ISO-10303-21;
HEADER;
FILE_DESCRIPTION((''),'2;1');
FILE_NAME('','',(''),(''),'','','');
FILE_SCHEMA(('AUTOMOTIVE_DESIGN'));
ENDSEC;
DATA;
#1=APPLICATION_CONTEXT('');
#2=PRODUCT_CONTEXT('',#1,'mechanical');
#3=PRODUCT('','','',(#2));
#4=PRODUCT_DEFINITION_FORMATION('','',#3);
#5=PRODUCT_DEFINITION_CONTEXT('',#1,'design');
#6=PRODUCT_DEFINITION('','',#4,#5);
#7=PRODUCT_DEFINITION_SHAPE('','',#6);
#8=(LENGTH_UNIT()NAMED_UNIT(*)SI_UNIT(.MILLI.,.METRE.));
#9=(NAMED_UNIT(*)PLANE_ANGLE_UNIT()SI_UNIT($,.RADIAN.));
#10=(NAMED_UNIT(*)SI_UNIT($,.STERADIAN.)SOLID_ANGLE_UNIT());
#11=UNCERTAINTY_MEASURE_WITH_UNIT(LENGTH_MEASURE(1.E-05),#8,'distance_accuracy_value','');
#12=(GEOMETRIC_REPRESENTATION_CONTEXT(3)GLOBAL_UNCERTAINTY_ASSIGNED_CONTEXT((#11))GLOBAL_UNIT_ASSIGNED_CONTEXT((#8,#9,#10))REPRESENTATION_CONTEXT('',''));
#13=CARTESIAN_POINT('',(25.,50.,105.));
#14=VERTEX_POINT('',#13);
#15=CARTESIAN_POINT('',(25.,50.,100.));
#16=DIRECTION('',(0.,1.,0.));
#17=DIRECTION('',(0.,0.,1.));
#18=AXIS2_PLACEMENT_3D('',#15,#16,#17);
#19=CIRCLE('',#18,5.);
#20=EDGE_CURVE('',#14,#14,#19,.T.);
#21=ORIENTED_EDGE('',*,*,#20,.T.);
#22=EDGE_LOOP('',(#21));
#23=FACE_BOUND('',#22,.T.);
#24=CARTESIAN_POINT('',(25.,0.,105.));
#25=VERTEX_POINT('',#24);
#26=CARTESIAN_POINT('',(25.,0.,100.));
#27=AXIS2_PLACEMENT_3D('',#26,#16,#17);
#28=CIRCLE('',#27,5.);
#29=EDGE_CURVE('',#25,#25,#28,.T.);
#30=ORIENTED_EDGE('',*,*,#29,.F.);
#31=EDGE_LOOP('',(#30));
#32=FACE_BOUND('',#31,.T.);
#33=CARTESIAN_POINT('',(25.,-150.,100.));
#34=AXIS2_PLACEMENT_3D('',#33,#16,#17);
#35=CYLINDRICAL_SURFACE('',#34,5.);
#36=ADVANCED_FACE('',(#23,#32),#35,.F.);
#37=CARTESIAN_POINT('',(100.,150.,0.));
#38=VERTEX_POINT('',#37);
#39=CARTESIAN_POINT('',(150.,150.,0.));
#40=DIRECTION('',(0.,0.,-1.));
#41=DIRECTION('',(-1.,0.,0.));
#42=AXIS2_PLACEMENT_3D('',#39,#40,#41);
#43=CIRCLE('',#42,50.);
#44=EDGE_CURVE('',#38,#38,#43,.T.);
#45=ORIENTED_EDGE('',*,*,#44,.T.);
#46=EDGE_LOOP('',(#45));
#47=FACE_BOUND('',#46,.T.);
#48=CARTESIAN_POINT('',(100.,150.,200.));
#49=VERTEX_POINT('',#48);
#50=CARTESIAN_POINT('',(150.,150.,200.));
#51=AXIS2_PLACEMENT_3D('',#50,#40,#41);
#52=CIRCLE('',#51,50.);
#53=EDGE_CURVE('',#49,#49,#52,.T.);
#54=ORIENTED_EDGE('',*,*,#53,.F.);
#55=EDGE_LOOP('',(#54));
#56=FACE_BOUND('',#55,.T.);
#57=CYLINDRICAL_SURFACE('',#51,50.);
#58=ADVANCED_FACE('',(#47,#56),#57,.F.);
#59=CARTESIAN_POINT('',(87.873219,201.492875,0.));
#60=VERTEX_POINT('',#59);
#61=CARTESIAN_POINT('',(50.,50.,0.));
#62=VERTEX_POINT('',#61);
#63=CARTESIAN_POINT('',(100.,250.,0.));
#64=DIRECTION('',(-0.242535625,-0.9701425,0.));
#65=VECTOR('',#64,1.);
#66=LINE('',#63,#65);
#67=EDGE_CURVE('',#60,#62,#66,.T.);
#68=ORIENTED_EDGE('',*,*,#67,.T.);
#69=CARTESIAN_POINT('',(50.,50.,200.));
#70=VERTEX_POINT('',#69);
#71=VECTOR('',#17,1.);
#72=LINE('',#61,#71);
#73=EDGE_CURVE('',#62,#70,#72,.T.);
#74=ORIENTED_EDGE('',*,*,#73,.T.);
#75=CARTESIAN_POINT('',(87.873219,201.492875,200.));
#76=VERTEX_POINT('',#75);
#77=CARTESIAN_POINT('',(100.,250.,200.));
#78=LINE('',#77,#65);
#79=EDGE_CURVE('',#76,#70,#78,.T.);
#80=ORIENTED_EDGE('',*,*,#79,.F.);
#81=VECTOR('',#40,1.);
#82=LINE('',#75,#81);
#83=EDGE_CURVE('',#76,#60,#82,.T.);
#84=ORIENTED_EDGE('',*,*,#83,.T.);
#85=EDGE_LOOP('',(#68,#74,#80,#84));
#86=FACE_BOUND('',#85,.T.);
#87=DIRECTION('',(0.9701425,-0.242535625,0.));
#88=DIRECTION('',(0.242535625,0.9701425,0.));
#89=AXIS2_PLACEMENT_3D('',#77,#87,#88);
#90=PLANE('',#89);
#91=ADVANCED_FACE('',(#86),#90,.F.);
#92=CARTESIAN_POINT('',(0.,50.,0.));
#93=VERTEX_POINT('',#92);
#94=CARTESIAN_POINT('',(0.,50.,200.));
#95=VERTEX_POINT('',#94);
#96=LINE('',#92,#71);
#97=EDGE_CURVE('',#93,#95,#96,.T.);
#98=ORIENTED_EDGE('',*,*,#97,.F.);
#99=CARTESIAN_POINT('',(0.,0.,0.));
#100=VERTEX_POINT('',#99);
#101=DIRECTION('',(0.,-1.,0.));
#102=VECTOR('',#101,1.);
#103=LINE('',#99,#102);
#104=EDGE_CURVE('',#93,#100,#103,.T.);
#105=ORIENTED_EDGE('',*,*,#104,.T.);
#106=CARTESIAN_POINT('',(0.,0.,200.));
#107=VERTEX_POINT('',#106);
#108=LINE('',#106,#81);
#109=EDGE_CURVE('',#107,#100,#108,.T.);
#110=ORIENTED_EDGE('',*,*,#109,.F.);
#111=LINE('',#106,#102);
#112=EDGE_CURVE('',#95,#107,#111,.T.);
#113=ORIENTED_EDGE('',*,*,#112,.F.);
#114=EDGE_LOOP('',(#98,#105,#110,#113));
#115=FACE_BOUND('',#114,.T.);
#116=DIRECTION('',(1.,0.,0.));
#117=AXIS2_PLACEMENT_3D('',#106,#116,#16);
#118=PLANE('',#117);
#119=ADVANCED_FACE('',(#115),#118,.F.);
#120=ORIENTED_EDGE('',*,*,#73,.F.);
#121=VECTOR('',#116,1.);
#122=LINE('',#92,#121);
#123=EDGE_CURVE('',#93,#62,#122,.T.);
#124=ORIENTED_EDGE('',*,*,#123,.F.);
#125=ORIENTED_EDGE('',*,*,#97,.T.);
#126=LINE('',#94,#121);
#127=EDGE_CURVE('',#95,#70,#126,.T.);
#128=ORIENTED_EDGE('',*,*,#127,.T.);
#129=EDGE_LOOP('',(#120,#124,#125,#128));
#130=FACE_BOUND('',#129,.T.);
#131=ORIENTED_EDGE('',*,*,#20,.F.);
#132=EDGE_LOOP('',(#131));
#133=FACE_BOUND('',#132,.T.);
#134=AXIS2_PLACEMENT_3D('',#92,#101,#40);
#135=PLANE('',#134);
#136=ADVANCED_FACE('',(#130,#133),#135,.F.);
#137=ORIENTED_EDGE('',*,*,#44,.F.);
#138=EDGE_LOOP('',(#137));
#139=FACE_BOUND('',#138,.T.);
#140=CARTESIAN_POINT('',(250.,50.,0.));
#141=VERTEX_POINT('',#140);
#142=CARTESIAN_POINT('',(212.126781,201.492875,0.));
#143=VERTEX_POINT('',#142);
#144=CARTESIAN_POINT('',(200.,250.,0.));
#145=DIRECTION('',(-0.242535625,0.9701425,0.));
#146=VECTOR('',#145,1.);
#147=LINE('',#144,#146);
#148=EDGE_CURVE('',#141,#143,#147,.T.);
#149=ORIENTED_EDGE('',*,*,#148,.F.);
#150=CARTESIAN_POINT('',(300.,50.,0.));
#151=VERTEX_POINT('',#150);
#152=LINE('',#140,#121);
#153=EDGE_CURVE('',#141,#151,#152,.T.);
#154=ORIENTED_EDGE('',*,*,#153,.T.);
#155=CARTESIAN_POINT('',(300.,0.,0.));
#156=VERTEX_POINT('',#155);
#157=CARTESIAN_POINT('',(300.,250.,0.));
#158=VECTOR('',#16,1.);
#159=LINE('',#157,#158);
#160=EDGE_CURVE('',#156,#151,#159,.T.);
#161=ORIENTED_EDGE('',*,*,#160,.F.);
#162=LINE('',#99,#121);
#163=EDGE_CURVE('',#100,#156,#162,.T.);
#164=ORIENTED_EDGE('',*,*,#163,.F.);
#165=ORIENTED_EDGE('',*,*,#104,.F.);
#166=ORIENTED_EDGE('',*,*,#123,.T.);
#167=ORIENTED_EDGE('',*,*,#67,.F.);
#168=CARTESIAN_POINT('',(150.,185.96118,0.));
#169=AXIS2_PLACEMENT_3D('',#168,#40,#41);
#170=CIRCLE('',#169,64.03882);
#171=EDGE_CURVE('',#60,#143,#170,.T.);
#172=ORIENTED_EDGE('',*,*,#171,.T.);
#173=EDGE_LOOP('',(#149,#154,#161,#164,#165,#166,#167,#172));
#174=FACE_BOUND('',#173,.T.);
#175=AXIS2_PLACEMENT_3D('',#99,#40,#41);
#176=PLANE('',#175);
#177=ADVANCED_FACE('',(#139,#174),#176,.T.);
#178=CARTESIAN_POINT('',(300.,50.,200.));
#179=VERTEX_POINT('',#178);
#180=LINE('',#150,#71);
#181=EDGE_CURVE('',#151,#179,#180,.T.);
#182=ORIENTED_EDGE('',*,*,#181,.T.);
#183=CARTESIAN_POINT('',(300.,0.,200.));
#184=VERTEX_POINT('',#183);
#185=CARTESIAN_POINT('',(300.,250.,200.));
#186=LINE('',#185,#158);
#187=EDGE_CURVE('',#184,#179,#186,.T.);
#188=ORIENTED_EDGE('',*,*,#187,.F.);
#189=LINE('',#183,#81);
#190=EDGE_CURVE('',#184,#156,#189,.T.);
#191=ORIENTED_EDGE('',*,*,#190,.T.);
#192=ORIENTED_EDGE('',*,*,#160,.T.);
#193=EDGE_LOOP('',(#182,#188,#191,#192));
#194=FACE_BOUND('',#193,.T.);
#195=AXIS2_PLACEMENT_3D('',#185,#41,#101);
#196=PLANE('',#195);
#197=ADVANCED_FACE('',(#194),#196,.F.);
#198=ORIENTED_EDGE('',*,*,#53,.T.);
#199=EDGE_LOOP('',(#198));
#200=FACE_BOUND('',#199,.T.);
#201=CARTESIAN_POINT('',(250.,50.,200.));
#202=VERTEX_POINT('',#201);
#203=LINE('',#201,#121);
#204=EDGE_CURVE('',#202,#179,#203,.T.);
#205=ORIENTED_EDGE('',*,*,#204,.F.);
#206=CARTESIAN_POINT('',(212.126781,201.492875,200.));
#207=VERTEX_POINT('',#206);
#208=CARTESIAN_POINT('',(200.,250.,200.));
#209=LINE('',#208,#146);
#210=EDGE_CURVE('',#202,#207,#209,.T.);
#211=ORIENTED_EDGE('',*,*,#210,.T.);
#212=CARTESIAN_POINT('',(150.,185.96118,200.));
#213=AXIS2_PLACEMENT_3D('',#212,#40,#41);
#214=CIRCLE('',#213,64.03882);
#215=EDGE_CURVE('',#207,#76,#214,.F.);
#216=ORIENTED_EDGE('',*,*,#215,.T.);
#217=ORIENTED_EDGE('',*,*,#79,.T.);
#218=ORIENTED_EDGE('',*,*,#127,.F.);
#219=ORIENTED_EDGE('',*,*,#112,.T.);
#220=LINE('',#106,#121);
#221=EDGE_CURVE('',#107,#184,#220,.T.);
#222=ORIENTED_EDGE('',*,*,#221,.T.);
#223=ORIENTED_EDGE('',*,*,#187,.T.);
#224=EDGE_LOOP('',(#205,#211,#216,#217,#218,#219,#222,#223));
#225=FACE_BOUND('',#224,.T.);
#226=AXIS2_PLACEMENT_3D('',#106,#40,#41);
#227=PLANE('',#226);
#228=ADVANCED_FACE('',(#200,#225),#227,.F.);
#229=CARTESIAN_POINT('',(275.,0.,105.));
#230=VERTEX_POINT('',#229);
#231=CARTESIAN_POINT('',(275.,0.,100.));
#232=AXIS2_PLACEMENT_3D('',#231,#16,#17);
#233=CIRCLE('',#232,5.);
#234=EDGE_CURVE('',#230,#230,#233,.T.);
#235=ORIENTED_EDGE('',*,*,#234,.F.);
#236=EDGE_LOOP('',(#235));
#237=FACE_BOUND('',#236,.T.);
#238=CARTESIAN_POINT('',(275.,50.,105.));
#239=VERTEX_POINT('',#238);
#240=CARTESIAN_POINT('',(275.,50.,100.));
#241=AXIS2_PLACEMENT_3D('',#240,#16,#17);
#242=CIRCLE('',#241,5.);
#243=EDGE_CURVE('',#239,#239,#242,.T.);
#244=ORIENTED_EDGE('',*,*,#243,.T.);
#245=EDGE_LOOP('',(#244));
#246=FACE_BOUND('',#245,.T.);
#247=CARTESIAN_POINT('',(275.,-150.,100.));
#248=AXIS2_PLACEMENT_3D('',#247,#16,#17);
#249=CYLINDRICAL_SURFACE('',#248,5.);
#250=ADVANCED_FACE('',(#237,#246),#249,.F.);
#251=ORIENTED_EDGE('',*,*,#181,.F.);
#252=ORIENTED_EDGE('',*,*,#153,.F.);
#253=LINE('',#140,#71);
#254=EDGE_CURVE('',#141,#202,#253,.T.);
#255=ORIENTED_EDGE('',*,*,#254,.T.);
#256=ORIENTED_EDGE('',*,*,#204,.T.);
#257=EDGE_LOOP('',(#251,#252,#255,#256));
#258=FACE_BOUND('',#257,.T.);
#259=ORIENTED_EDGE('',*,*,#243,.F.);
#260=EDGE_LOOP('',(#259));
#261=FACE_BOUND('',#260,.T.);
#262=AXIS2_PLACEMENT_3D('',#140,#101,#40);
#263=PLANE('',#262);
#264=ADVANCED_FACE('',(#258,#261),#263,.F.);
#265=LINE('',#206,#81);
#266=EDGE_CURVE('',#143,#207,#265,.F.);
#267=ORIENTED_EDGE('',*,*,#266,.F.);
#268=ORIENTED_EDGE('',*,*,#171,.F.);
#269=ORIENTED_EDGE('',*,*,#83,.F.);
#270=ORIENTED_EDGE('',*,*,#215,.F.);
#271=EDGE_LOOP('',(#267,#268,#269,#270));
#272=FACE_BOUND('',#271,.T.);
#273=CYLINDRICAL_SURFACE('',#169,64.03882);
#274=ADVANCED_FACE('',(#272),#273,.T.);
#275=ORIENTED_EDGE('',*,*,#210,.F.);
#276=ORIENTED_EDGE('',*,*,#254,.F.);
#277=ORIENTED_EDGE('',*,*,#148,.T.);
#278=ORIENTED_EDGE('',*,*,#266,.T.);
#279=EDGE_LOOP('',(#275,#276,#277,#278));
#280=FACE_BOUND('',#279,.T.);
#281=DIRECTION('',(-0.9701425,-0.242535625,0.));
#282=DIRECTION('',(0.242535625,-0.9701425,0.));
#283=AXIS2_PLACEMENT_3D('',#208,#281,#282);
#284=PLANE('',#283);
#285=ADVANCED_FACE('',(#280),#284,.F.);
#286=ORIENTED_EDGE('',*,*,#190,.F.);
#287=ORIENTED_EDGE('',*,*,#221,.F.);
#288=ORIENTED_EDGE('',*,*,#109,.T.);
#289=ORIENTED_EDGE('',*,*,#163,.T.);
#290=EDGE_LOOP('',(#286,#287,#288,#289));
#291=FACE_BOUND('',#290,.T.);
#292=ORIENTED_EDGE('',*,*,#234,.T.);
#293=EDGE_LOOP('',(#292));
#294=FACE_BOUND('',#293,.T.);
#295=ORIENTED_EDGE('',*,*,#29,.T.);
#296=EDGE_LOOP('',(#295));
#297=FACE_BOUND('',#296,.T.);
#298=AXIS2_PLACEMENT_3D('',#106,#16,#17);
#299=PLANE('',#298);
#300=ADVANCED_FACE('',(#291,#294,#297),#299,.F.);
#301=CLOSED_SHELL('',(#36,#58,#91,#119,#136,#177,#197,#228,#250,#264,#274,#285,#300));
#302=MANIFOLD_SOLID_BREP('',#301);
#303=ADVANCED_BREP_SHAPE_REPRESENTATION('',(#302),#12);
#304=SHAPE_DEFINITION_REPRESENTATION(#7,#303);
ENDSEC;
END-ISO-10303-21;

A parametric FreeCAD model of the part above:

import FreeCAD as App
import Part
import Sketcher
from FreeCAD import Vector


def edges_at(feature, points):
    """Names of the edges that pass closest to the given points."""
    edges = feature.Shape.Edges
    near = lambda p: min(range(len(edges)), key=lambda i: edges[i].distToShape(Part.Vertex(*p))[0])
    return sorted({f"Edge{near(p) + 1}" for p in points})

doc = App.newDocument("Part")
body = doc.addObject("PartDesign::Body", "Body")

sketch1 = body.newObject("Sketcher::SketchObject", "Sketch")
sketch1.AttachmentSupport = (doc.getObject("XY_Plane"), [""])
sketch1.MapMode = "FlatFace"
sketch1.addGeometry([
    Part.LineSegment(Vector(0, 250, 0), Vector(0, 0, 0)),
    Part.LineSegment(Vector(0, 0, 0), Vector(300, 0, 0)),
    Part.LineSegment(Vector(300, 0, 0), Vector(300, 250, 0)),
    Part.LineSegment(Vector(300, 250, 0), Vector(0, 250, 0)),
], False)
sketch1.addConstraint([
    Sketcher.Constraint("Coincident", 0, 2, 1, 1),
    Sketcher.Constraint("Coincident", 1, 2, 2, 1),
    Sketcher.Constraint("Coincident", 2, 2, 3, 1),
    Sketcher.Constraint("Coincident", 3, 2, 0, 1),
    Sketcher.Constraint("Vertical", 0),
    Sketcher.Constraint("Horizontal", 1),
    Sketcher.Constraint("Vertical", 2),
    Sketcher.Constraint("Horizontal", 3),
    Sketcher.Constraint("Coincident", 0, 2, -1, 1),
    Sketcher.Constraint("DistanceX", 1, 1, 1, 2, 300.0),
    Sketcher.Constraint("DistanceY", 0, 2, 0, 1, 250.0),
])
pad1 = body.newObject("PartDesign::Pad", "Pad")
pad1.Profile = sketch1
pad1.Length = 200

sketch2 = body.newObject("Sketcher::SketchObject", "Sketch001")
sketch2.AttachmentSupport = (doc.getObject("XY_Plane"), [""])
sketch2.MapMode = "FlatFace"
sketch2.AttachmentOffset = App.Placement(Vector(0, 0, 200), App.Rotation())
sketch2.addGeometry([
    Part.LineSegment(Vector(0, 250, 0), Vector(0, 50, 0)),
    Part.LineSegment(Vector(0, 50, 0), Vector(50, 50, 0)),
    Part.LineSegment(Vector(50, 50, 0), Vector(50, 250, 0)),
    Part.LineSegment(Vector(50, 250, 0), Vector(0, 250, 0)),
], False)
sketch2.addConstraint([
    Sketcher.Constraint("Coincident", 0, 2, 1, 1),
    Sketcher.Constraint("Coincident", 1, 2, 2, 1),
    Sketcher.Constraint("Coincident", 2, 2, 3, 1),
    Sketcher.Constraint("Coincident", 3, 2, 0, 1),
    Sketcher.Constraint("Vertical", 0),
    Sketcher.Constraint("Horizontal", 1),
    Sketcher.Constraint("Vertical", 2),
    Sketcher.Constraint("Horizontal", 3),
    Sketcher.Constraint("PointOnObject", 0, 2, -2),
    Sketcher.Constraint("DistanceX", 1, 1, 1, 2, 50.0),
    Sketcher.Constraint("DistanceY", 0, 2, 0, 1, 200.0),
    Sketcher.Constraint("DistanceY", -1, 1, 0, 2, 50.0),
])
pocket1 = body.newObject("PartDesign::Pocket", "Pocket")
pocket1.Profile = sketch2
pocket1.Length = 200

sketch3 = body.newObject("Sketcher::SketchObject", "Sketch002")
sketch3.AttachmentSupport = (doc.getObject("XY_Plane"), [""])
sketch3.MapMode = "FlatFace"
sketch3.AttachmentOffset = App.Placement(Vector(0, 0, 200), App.Rotation())
sketch3.addGeometry([
    Part.LineSegment(Vector(250, 250, 0), Vector(250, 50, 0)),
    Part.LineSegment(Vector(250, 50, 0), Vector(300, 50, 0)),
    Part.LineSegment(Vector(300, 50, 0), Vector(300, 250, 0)),
    Part.LineSegment(Vector(300, 250, 0), Vector(250, 250, 0)),
], False)
sketch3.addConstraint([
    Sketcher.Constraint("Coincident", 0, 2, 1, 1),
    Sketcher.Constraint("Coincident", 1, 2, 2, 1),
    Sketcher.Constraint("Coincident", 2, 2, 3, 1),
    Sketcher.Constraint("Coincident", 3, 2, 0, 1),
    Sketcher.Constraint("Vertical", 0),
    Sketcher.Constraint("Horizontal", 1),
    Sketcher.Constraint("Vertical", 2),
    Sketcher.Constraint("Horizontal", 3),
    Sketcher.Constraint("DistanceX", 1, 1, 1, 2, 50.0),
    Sketcher.Constraint("DistanceY", 0, 2, 0, 1, 200.0),
    Sketcher.Constraint("DistanceX", -1, 1, 0, 2, 250.0),
    Sketcher.Constraint("DistanceY", -1, 1, 0, 2, 50.0),
])
pocket2 = body.newObject("PartDesign::Pocket", "Pocket001")
pocket2.Profile = sketch3
pocket2.Length = 200

sketch4 = body.newObject("Sketcher::SketchObject", "Sketch003")
sketch4.AttachmentSupport = (doc.getObject("XY_Plane"), [""])
sketch4.MapMode = "FlatFace"
sketch4.addGeometry([
    Part.LineSegment(Vector(50, 250, 0), Vector(100, 250, 0)),
    Part.LineSegment(Vector(100, 250, 0), Vector(50, 50, 0)),
    Part.LineSegment(Vector(50, 50, 0), Vector(50, 250, 0)),
], False)
sketch4.addConstraint([
    Sketcher.Constraint("Coincident", 0, 2, 1, 1),
    Sketcher.Constraint("Coincident", 1, 2, 2, 1),
    Sketcher.Constraint("Coincident", 2, 2, 0, 1),
    Sketcher.Constraint("Horizontal", 0),
    Sketcher.Constraint("Vertical", 2),
    Sketcher.Constraint("DistanceX", 0, 1, 0, 2, 50.0),
    Sketcher.Constraint("DistanceY", 2, 1, 2, 2, 200.0),
    Sketcher.Constraint("DistanceX", -1, 1, 0, 2, 100.0),
    Sketcher.Constraint("DistanceY", -1, 1, 0, 2, 250.0),
])
pocket3 = body.newObject("PartDesign::Pocket", "Pocket002")
pocket3.Profile = sketch4
pocket3.Length = 200
pocket3.Reversed = True

sketch5 = body.newObject("Sketcher::SketchObject", "Sketch004")
sketch5.AttachmentSupport = (doc.getObject("XY_Plane"), [""])
sketch5.MapMode = "FlatFace"
sketch5.addGeometry([
    Part.LineSegment(Vector(200, 250, 0), Vector(250, 250, 0)),
    Part.LineSegment(Vector(250, 250, 0), Vector(250, 50, 0)),
    Part.LineSegment(Vector(250, 50, 0), Vector(200, 250, 0)),
], False)
sketch5.addConstraint([
    Sketcher.Constraint("Coincident", 0, 2, 1, 1),
    Sketcher.Constraint("Coincident", 1, 2, 2, 1),
    Sketcher.Constraint("Coincident", 2, 2, 0, 1),
    Sketcher.Constraint("Horizontal", 0),
    Sketcher.Constraint("Vertical", 1),
    Sketcher.Constraint("DistanceX", 0, 1, 0, 2, 50.0),
    Sketcher.Constraint("DistanceY", 1, 2, 1, 1, 200.0),
    Sketcher.Constraint("DistanceX", -1, 1, 0, 2, 250.0),
    Sketcher.Constraint("DistanceY", -1, 1, 0, 2, 250.0),
])
pocket4 = body.newObject("PartDesign::Pocket", "Pocket003")
pocket4.Profile = sketch5
pocket4.Length = 200
pocket4.Reversed = True
doc.recompute()

fillet = body.newObject("PartDesign::Fillet", "Fillet")
fillet.Base = (pocket4, edges_at(pocket4, [(100, 250, 100), (200, 250, 100)]))
fillet.Radius = 64.03882

sketch6 = body.newObject("Sketcher::SketchObject", "Sketch005")
sketch6.AttachmentSupport = (doc.getObject("XY_Plane"), [""])
sketch6.MapMode = "FlatFace"
sketch6.addGeometry(Part.Circle(Vector(150, 150, 0), Vector(0, 0, 1), 50), False)
sketch6.addConstraint([
    Sketcher.Constraint("Diameter", 0, 100.0),
    Sketcher.Constraint("DistanceX", -1, 1, 0, 3, 150.0),
    Sketcher.Constraint("DistanceY", -1, 1, 0, 3, 150.0),
])
pocket5 = body.newObject("PartDesign::Pocket", "Pocket004")
pocket5.Profile = sketch6
pocket5.Length = 200
pocket5.Reversed = True

sketch7 = body.newObject("Sketcher::SketchObject", "Sketch006")
sketch7.AttachmentSupport = (doc.getObject("XZ_Plane"), [""])
sketch7.MapMode = "FlatFace"
sketch7.AttachmentOffset = App.Placement(Vector(0, 0, -50), App.Rotation())
sketch7.addGeometry(Part.Circle(Vector(25, 100, 0), Vector(0, 0, 1), 5), False)
sketch7.addConstraint([
    Sketcher.Constraint("Diameter", 0, 10.0),
    Sketcher.Constraint("DistanceX", -1, 1, 0, 3, 25.0),
    Sketcher.Constraint("DistanceY", -1, 1, 0, 3, 100.0),
])
pocket6 = body.newObject("PartDesign::Pocket", "Pocket005")
pocket6.Profile = sketch7
pocket6.Length = 200
pocket6.Reversed = True

sketch8 = body.newObject("Sketcher::SketchObject", "Sketch007")
sketch8.AttachmentSupport = (doc.getObject("XZ_Plane"), [""])
sketch8.MapMode = "FlatFace"
sketch8.AttachmentOffset = App.Placement(Vector(0, 0, -50), App.Rotation())
sketch8.addGeometry(Part.Circle(Vector(275, 100, 0), Vector(0, 0, 1), 5), False)
sketch8.addConstraint([
    Sketcher.Constraint("Diameter", 0, 10.0),
    Sketcher.Constraint("DistanceX", -1, 1, 0, 3, 275.0),
    Sketcher.Constraint("DistanceY", -1, 1, 0, 3, 100.0),
])
pocket7 = body.newObject("PartDesign::Pocket", "Pocket006")
pocket7.Profile = sketch8
pocket7.Length = 200
pocket7.Reversed = True

doc.recompute()
